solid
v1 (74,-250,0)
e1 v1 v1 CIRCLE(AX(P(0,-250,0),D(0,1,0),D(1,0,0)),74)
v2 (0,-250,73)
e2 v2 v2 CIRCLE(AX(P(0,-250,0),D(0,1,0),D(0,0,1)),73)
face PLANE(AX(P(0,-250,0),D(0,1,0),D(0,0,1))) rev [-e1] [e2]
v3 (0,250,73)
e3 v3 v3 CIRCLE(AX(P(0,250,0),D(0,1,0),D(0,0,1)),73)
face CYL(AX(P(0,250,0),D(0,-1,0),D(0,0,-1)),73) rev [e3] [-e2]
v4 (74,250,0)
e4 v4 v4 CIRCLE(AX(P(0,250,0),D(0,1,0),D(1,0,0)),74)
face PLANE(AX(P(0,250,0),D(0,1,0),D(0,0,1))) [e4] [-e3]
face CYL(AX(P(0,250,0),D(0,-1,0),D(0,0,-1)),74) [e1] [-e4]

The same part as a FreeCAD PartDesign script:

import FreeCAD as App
import Part
import Sketcher
from FreeCAD import Vector

doc = App.newDocument("Part")
params = doc.addObject("Spreadsheet::Sheet", "Params")
for row, (alias, value) in enumerate([
    ("sketch1_diameter", "148 mm"),
    ("sketch1_diameter2", "146 mm"),
    ("pad1_length", "500 mm"),
], start=1):
    params.set(f"A{row}", alias)
    params.set(f"B{row}", "=" + value)
    params.setAlias(f"B{row}", alias)

body = doc.addObject("PartDesign::Body", "Body")

sketch1 = body.newObject("Sketcher::SketchObject", "Sketch")
sketch1.AttachmentSupport = (doc.getObject("XZ_Plane"), [""])
sketch1.MapMode = "FlatFace"
sketch1.addGeometry([
    Part.Circle(Vector(0, 0, 0), Vector(0, 0, 1), 74),
    Part.Circle(Vector(0, 0, 0), Vector(0, 0, 1), 73),
], False)
sketch1.addConstraint([
    Sketcher.Constraint("Coincident", 0, 3, -1, 1),
    Sketcher.Constraint("Coincident", 1, 3, -1, 1),
    Sketcher.Constraint("Diameter", 0, 148.0),
    Sketcher.Constraint("Diameter", 1, 146.0),
])
sketch1.setExpression("Constraints[2]", "Params.sketch1_diameter")
sketch1.setExpression("Constraints[3]", "Params.sketch1_diameter2")
pad1 = body.newObject("PartDesign::Pad", "Pad")
pad1.Profile = sketch1
pad1.setExpression("Length", "Params.pad1_length")
pad1.Midplane = True

doc.recompute()
